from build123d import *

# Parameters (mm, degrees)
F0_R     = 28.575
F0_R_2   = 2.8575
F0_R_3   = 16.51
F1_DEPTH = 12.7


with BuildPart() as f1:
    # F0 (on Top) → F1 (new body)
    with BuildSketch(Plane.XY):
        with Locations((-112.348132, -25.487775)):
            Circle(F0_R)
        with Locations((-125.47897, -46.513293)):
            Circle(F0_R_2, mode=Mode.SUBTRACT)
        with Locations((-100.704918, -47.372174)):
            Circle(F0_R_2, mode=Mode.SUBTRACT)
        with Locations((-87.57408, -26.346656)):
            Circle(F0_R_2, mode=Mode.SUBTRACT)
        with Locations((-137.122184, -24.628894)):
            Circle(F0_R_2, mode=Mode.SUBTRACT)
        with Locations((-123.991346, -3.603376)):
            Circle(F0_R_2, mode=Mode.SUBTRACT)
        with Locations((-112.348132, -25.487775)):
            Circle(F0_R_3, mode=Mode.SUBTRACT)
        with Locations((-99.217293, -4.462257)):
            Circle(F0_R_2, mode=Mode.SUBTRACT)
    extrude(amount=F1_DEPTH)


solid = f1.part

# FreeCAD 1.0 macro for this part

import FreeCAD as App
import Part
import Sketcher

V = App.Vector
Q = App.Units.Quantity

doc = App.newDocument("Part")
body = doc.addObject("PartDesign::Body", "Body")

sketch1 = doc.addObject("Sketcher::SketchObject", "Sketch")
body.addObject(sketch1)
sketch1.AttachmentSupport = (doc.XY_Plane, [""])
sketch1.MapMode = "FlatFace"
sketch1.addGeometry([
    Part.Circle(V(-112.3, -25.5, 0), V(0, 0, 1), 28.6),
    Part.Circle(V(-125.5, -46.5, 0), V(0, 0, 1), 2.9),
    Part.Circle(V(-100.7, -47.4, 0), V(0, 0, 1), 2.9),
    Part.Circle(V(-87.6, -26.3, 0), V(0, 0, 1), 2.9),
    Part.Circle(V(-137.1, -24.6, 0), V(0, 0, 1), 2.9),
    Part.Circle(V(-112.3, -25.5, 0), V(0, 0, 1), 16.5),
    Part.Circle(V(-124, -3.6, 0), V(0, 0, 1), 2.9),
    Part.Circle(V(-99.2, -4.5, 0), V(0, 0, 1), 2.9),
], False)
sketch1.addConstraint([
    Sketcher.Constraint("Coincident", 5, 3, 0, 3),
    Sketcher.Constraint("Equal", 1, 2),
    Sketcher.Constraint("Equal", 2, 3),
    Sketcher.Constraint("Equal", 3, 4),
    Sketcher.Constraint("Equal", 4, 6),
    Sketcher.Constraint("Equal", 6, 7),
    Sketcher.Constraint("Diameter", 5, Q("1.3 in")),
    Sketcher.Constraint("Diameter", 0, Q("2.25 in")),
    Sketcher.Constraint("Diameter", 1, Q("0.225 in")),
    Sketcher.Constraint("DistanceY", 2, 3, 0, 3, Q("21.884399 mm")),
    Sketcher.Constraint("DistanceY", 1, 3, 4, 3, Q("21.884399 mm")),
    Sketcher.Constraint("DistanceY", 0, 3, 6, 3, Q("21.884399 mm")),
    Sketcher.Constraint("DistanceY", 3, 3, 7, 3, Q("21.884399 mm")),
    Sketcher.Constraint("DistanceX", 1, 3, -1, 1, Q("125.47897 mm")),
    Sketcher.Constraint("DistanceX", 2, 3, -1, 1, Q("100.704918 mm")),
    Sketcher.Constraint("DistanceX", 3, 3, -1, 1, Q("87.57408 mm")),
    Sketcher.Constraint("DistanceY", 2, 3, 1, 3, Q("0.858881 mm")),
    Sketcher.Constraint("DistanceY", 2, 3, 3, 3, Q("21.025518 mm")),
    Sketcher.Constraint("DistanceX", 4, 3, 0, 3, Q("24.774052 mm")),
    Sketcher.Constraint("DistanceX", 4, 3, 6, 3, Q("13.130838 mm")),
    Sketcher.Constraint("DistanceX", 0, 3, 7, 3, Q("13.130839 mm")),
    Sketcher.Constraint("DistanceX", 0, 3, -1, 1, Q("112.348132 mm")),
    Sketcher.Constraint("DistanceY", 0, 3, -1, 1, Q("25.487775 mm")),
])
pad1 = doc.addObject("PartDesign::Pad", "Pad")
body.addObject(pad1)
pad1.Profile = sketch1
pad1.Length = Q("0.5 in")

doc.recompute()
